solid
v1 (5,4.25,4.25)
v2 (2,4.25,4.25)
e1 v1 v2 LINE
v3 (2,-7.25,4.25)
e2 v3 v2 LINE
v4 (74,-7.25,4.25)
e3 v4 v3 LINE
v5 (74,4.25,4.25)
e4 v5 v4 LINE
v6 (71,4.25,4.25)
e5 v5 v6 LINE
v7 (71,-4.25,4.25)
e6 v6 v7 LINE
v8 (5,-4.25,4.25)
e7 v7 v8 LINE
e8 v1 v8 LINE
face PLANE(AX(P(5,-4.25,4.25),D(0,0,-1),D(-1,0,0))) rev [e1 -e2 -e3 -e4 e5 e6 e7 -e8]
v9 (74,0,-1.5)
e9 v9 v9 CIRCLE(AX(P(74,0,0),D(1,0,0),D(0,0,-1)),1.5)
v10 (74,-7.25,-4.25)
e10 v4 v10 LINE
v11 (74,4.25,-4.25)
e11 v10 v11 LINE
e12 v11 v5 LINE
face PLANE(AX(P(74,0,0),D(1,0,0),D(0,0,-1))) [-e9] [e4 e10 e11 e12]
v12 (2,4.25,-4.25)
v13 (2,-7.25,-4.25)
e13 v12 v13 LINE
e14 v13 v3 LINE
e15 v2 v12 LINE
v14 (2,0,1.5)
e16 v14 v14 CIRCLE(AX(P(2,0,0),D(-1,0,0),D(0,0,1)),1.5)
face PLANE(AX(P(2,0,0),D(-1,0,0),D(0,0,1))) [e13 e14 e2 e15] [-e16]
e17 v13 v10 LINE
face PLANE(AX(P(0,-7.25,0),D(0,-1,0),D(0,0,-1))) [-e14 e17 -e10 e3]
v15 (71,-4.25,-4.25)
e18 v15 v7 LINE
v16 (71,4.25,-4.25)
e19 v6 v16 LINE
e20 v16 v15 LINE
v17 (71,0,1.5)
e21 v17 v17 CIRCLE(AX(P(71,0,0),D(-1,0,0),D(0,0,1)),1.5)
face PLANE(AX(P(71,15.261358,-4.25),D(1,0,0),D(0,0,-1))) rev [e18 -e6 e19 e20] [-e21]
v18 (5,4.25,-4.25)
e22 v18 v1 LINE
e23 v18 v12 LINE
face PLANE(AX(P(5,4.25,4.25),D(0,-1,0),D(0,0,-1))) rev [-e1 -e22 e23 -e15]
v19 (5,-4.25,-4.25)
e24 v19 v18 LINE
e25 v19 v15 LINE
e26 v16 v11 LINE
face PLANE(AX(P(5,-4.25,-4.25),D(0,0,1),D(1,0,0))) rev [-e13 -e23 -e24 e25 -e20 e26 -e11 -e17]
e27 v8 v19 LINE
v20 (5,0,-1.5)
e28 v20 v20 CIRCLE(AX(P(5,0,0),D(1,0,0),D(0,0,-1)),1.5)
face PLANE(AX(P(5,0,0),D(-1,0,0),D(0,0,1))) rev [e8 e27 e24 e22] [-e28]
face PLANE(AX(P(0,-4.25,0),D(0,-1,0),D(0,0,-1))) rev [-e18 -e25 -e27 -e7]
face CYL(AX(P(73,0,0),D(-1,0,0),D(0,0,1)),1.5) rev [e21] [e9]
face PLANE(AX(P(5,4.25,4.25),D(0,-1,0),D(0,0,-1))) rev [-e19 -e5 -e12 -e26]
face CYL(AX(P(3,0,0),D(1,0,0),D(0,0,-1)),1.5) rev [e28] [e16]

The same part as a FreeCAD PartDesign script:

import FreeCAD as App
import Part
import Sketcher
from FreeCAD import Vector
Q = App.Units.Quantity

doc = App.newDocument("Part")
body = doc.addObject("PartDesign::Body", "Body")

# Sketch on YZ plane
sketch1 = body.newObject("Sketcher::SketchObject", "Sketch")
sketch1.AttachmentSupport = (doc.getObject("YZ_Plane"), [""])
sketch1.MapMode = "FlatFace"
sketch1.addGeometry([
    Part.LineSegment(Vector(4.2, 4.2, 0), Vector(-4.2, 4.2, 0)),  # 0
    Part.LineSegment(Vector(-4.2, 4.2, 0), Vector(-4.2, -4.2, 0)),  # 1
    Part.LineSegment(Vector(-4.2, -4.2, 0), Vector(4.2, -4.2, 0)),  # 2
    Part.LineSegment(Vector(4.2, -4.2, 0), Vector(4.2, 4.2, 0)),  # 3
    Part.LineSegment(Vector(2.8, 1.6, 0), Vector(2.8, -1.6, 0)),  # 4
    Part.LineSegment(Vector(2.8, -1.6, 0), Vector(0, -3.2, 0)),  # 5
    Part.LineSegment(Vector(0, -3.2, 0), Vector(-2.8, -1.6, 0)),  # 6
    Part.LineSegment(Vector(-2.8, -1.6, 0), Vector(-2.8, 1.6, 0)),  # 7
    Part.LineSegment(Vector(-2.8, 1.6, 0), Vector(0, 3.2, 0)),  # 8
    Part.LineSegment(Vector(0, 3.2, 0), Vector(2.8, 1.6, 0)),  # 9
], False)
sketch1.addConstraint([
    Sketcher.Constraint("Coincident", 0, 2, 1, 1),
    Sketcher.Constraint("Coincident", 1, 2, 2, 1),
    Sketcher.Constraint("Coincident", 2, 2, 3, 1),
    Sketcher.Constraint("Coincident", 3, 2, 0, 1),
    Sketcher.Constraint("Coincident", 4, 2, 5, 1),
    Sketcher.Constraint("Coincident", 5, 2, 6, 1),
    Sketcher.Constraint("Coincident", 6, 2, 7, 1),
    Sketcher.Constraint("Coincident", 7, 2, 8, 1),
    Sketcher.Constraint("Coincident", 8, 2, 9, 1),
    Sketcher.Constraint("Coincident", 9, 2, 4, 1),
    Sketcher.Constraint("Horizontal", 0),
    Sketcher.Constraint("Vertical", 1),
    Sketcher.Constraint("Horizontal", 2),
    Sketcher.Constraint("Vertical", 3),
    Sketcher.Constraint("Vertical", 4),
    Sketcher.Constraint("Vertical", 7),
    Sketcher.Constraint("Symmetric", 0, 2, 2, 2, -1, 1),
    Sketcher.Constraint("Symmetric", 4, 2, 7, 2, -1, 1),
    Sketcher.Constraint("Symmetric", 5, 2, 8, 2, -1, 1),
    Sketcher.Constraint("PointOnObject", 5, 2, -2),
    Sketcher.Constraint("Parallel", 6, 9),
    Sketcher.Constraint("Horizontal", 4, 2, 6, 2),
    Sketcher.Constraint("Equal", 2, 1),
    Sketcher.Constraint("Angle", 5, Q("-150 deg")),
    Sketcher.Constraint("DistanceX", 0, 2, 0, 1, 8.5),
    Sketcher.Constraint("DistanceX", 1, 2, 4, 2, 7.0),
    Sketcher.Constraint("DistanceY", 4, 2, 4, 1, 3.175426),
])
pad1 = body.newObject("PartDesign::Pad", "Pad")
pad1.Profile = sketch1
pad1.Length = 5

# Sketch on YZ plane
sketch2 = body.newObject("Sketcher::SketchObject", "Sketch001")
sketch2.AttachmentSupport = (doc.getObject("YZ_Plane"), [""])
sketch2.MapMode = "FlatFace"
sketch2.addGeometry([
    Part.LineSegment(Vector(4, -4, 0), Vector(-4, -4, 0)),
    Part.LineSegment(Vector(-4, -4, 0), Vector(-4, 4, 0)),
    Part.LineSegment(Vector(-4, 4, 0), Vector(4, 4, 0)),
    Part.LineSegment(Vector(4, 4, 0), Vector(4, -4, 0)),
], False)
sketch2.addConstraint([
    Sketcher.Constraint("Coincident", 0, 2, 1, 1),
    Sketcher.Constraint("Coincident", 1, 2, 2, 1),
    Sketcher.Constraint("Coincident", 2, 2, 3, 1),
    Sketcher.Constraint("Coincident", 3, 2, 0, 1),
    Sketcher.Constraint("Horizontal", 0),
    Sketcher.Constraint("Vertical", 1),
    Sketcher.Constraint("Horizontal", 2),
    Sketcher.Constraint("Vertical", 3),
    Sketcher.Constraint("Symmetric", 0, 2, 2, 2, -1, 1),
    Sketcher.Constraint("Equal", 2, 1),
    Sketcher.Constraint("DistanceX", 0, 2, 0, 1, 8.5),
])
pad2 = body.newObject("PartDesign::Pad", "Pad001")
pad2.Profile = sketch2
pad2.Length = 2
pad2.Reversed = True

# Sketch on YZ plane
sketch3 = body.newObject("Sketcher::SketchObject", "Sketch002")
sketch3.AttachmentSupport = (doc.getObject("YZ_Plane"), [""])
sketch3.MapMode = "FlatFace"
sketch3.addGeometry(Part.Circle(Vector(0, 0, 0), Vector(0, 0, 1), 1.5), False)
sketch3.addConstraint([
    Sketcher.Constraint("Coincident", 0, 3, -1, 1),
    Sketcher.Constraint("Diameter", 0, 3.0),
])
pocket1 = body.newObject("PartDesign::Pocket", "Pocket")
pocket1.Profile = sketch3
pocket1.Length = 2

# Sketch on XZ plane
sketch4 = body.newObject("Sketcher::SketchObject", "Sketch003")
sketch4.AttachmentSupport = (doc.getObject("XZ_Plane"), [""])
sketch4.MapMode = "FlatFace"
sketch4.AttachmentOffset = App.Placement(Vector(0, 0, 4.25), App.Rotation())
sketch4.addGeometry([
    Part.LineSegment(Vector(-2, 4, 0), Vector(-2, -4, 0)),
    Part.LineSegment(Vector(-2, -4, 0), Vector(78, -4, 0)),
    Part.LineSegment(Vector(78, -4, 0), Vector(78, 4, 0)),
    Part.LineSegment(Vector(78, 4, 0), Vector(-2, 4, 0)),
], False)
sketch4.addConstraint([
    Sketcher.Constraint("Coincident", 0, 2, 1, 1),
    Sketcher.Constraint("Coincident", 1, 2, 2, 1),
    Sketcher.Constraint("Coincident", 2, 2, 3, 1),
    Sketcher.Constraint("Coincident", 3, 2, 0, 1),
    Sketcher.Constraint("Vertical", 0),
    Sketcher.Constraint("Horizontal", 1),
    Sketcher.Constraint("Vertical", 2),
    Sketcher.Constraint("Horizontal", 3),
    Sketcher.Constraint("DistanceX", 1, 1, 1, 2, 80.0),
    Sketcher.Constraint("DistanceY", 0, 2, 0, 1, 8.5),
    Sketcher.Constraint("DistanceX", 0, 2, -1, 1, 2.0),
    Sketcher.Constraint("DistanceY", 0, 2, -1, 1, 4.25),
])
pad3 = body.newObject("PartDesign::Pad", "Pad002")
pad3.Profile = sketch4
pad3.Length = 3

# Sketch on XZ plane
sketch5 = body.newObject("Sketcher::SketchObject", "Sketch004")
sketch5.AttachmentSupport = (doc.getObject("XZ_Plane"), [""])
sketch5.MapMode = "FlatFace"
sketch5.AttachmentOffset = App.Placement(Vector(0, 0, 4.25), App.Rotation())
sketch5.addGeometry([
    Part.LineSegment(Vector(71, -4, 0), Vector(71, 4, 0)),
    Part.LineSegment(Vector(71, 4, 0), Vector(78, 4, 0)),
    Part.LineSegment(Vector(78, 4, 0), Vector(78, -4, 0)),
    Part.LineSegment(Vector(78, -4, 0), Vector(71, -4, 0)),
], False)
sketch5.addConstraint([
    Sketcher.Constraint("Coincident", 0, 2, 1, 1),
    Sketcher.Constraint("Coincident", 1, 2, 2, 1),
    Sketcher.Constraint("Coincident", 2, 2, 3, 1),
    Sketcher.Constraint("Coincident", 3, 2, 0, 1),
    Sketcher.Constraint("Vertical", 0),
    Sketcher.Constraint("Horizontal", 1),
    Sketcher.Constraint("Vertical", 2),
    Sketcher.Constraint("Horizontal", 3),
    Sketcher.Constraint("DistanceX", 1, 1, 1, 2, 7.0),
    Sketcher.Constraint("DistanceY", 0, 1, 0, 2, 8.5),
    Sketcher.Constraint("DistanceX", -1, 1, 0, 2, 71.0),
    Sketcher.Constraint("DistanceY", -1, 1, 0, 2, 4.25),
])
pad4 = body.newObject("PartDesign::Pad", "Pad003")
pad4.Profile = sketch5
pad4.Length = 8.5
pad4.Reversed = True

# Sketch on YZ plane
sketch6 = body.newObject("Sketcher::SketchObject", "Sketch005")
sketch6.AttachmentSupport = (doc.getObject("YZ_Plane"), [""])
sketch6.MapMode = "FlatFace"
sketch6.AttachmentOffset = App.Placement(Vector(0, 0, 71), App.Rotation())
sketch6.addGeometry([
    Part.LineSegment(Vector(0, 3.2, 0), Vector(2.8, 1.6, 0)),  # 0
    Part.LineSegment(Vector(2.8, 1.6, 0), Vector(2.8, -1.6, 0)),  # 1
    Part.LineSegment(Vector(2.8, -1.6, 0), Vector(0, -3.2, 0)),  # 2
    Part.LineSegment(Vector(0, -3.2, 0), Vector(-2.8, -1.6, 0)),  # 3
    Part.LineSegment(Vector(-2.8, -1.6, 0), Vector(-2.8, 1.6, 0)),  # 4
    Part.LineSegment(Vector(-2.8, 1.6, 0), Vector(0, 3.2, 0)),  # 5
], False)
sketch6.addConstraint([
    Sketcher.Constraint("Coincident", 0, 2, 1, 1),
    Sketcher.Constraint("Coincident", 1, 2, 2, 1),
    Sketcher.Constraint("Coincident", 2, 2, 3, 1),
    Sketcher.Constraint("Coincident", 3, 2, 4, 1),
    Sketcher.Constraint("Coincident", 4, 2, 5, 1),
    Sketcher.Constraint("Coincident", 5, 2, 0, 1),
    Sketcher.Constraint("Vertical", 1),
    Sketcher.Constraint("Vertical", 4),
    Sketcher.Constraint("Symmetric", 0, 2, 3, 2, -1, 1),
    Sketcher.Constraint("Symmetric", 2, 2, 5, 2, -1, 1),
    Sketcher.Constraint("PointOnObject", 2, 2, -2),
    Sketcher.Constraint("Parallel", 2, 5),
    Sketcher.Constraint("Horizontal", 1, 2, 3, 2),
    Sketcher.Constraint("Angle", 0, Q("-30 deg")),
    Sketcher.Constraint("DistanceX", 3, 2, 1, 2, 5.5),
    Sketcher.Constraint("DistanceY", 1, 2, 1, 1, 3.175426),
])
pocket2 = body.newObject("PartDesign::Pocket", "Pocket001")
pocket2.Profile = sketch6
pocket2.Length = 5
pocket2.Reversed = True

# Sketch on YZ plane
sketch7 = body.newObject("Sketcher::SketchObject", "Sketch006")
sketch7.AttachmentSupport = (doc.getObject("YZ_Plane"), [""])
sketch7.MapMode = "FlatFace"
sketch7.AttachmentOffset = App.Placement(Vector(0, 0, 76), App.Rotation())
sketch7.addGeometry(Part.Circle(Vector(0, 0, 0), Vector(0, 0, 1), 1.5), False)
sketch7.addConstraint([
    Sketcher.Constraint("Coincident", 0, 3, -1, 1),
    Sketcher.Constraint("Diameter", 0, 3.0),
])
pocket3 = body.newObject("PartDesign::Pocket", "Pocket002")
pocket3.Profile = sketch7
pocket3.Length = 5
pocket3.Reversed = True

# Sketch on YZ plane
sketch8 = body.newObject("Sketcher::SketchObject", "Sketch007")
sketch8.AttachmentSupport = (doc.getObject("YZ_Plane"), [""])
sketch8.MapMode = "FlatFace"
sketch8.AttachmentOffset = App.Placement(Vector(0, 0, -2), App.Rotation())
sketch8.addGeometry([
    Part.LineSegment(Vector(2.8, 1.6, 0), Vector(2.8, -1.6, 0)),  # 0
    Part.LineSegment(Vector(2.8, -1.6, 0), Vector(0, -3.2, 0)),  # 1
    Part.LineSegment(Vector(0, -3.2, 0), Vector(-2.8, -1.6, 0)),  # 2
    Part.LineSegment(Vector(-2.8, -1.6, 0), Vector(-2.8, 1.6, 0)),  # 3
    Part.LineSegment(Vector(-2.8, 1.6, 0), Vector(0, 3.2, 0)),  # 4
    Part.LineSegment(Vector(0, 3.2, 0), Vector(2.8, 1.6, 0)),  # 5
], False)
sketch8.addConstraint([
    Sketcher.Constraint("Coincident", 0, 2, 1, 1),
    Sketcher.Constraint("Coincident", 1, 2, 2, 1),
    Sketcher.Constraint("Coincident", 2, 2, 3, 1),
    Sketcher.Constraint("Coincident", 3, 2, 4, 1),
    Sketcher.Constraint("Coincident", 4, 2, 5, 1),
    Sketcher.Constraint("Coincident", 5, 2, 0, 1),
    Sketcher.Constraint("Vertical", 0),
    Sketcher.Constraint("Vertical", 3),
    Sketcher.Constraint("Symmetric", 0, 2, 3, 2, -1, 1),
    Sketcher.Constraint("Symmetric", 1, 2, 4, 2, -1, 1),
    Sketcher.Constraint("PointOnObject", 1, 2, -2),
    Sketcher.Constraint("Parallel", 2, 5),
    Sketcher.Constraint("Horizontal", 0, 2, 2, 2),
    Sketcher.Constraint("Angle", 1, Q("-150 deg")),
    Sketcher.Constraint("DistanceX", 2, 2, 0, 2, 5.5),
    Sketcher.Constraint("DistanceY", 0, 2, 0, 1, 3.175426),
])
pocket4 = body.newObject("PartDesign::Pocket", "Pocket003")
pocket4.Profile = sketch8
pocket4.Length = 10
pocket4.Reversed = True

# Sketch on YZ plane
sketch9 = body.newObject("Sketcher::SketchObject", "Sketch008")
sketch9.AttachmentSupport = (doc.getObject("YZ_Plane"), [""])
sketch9.MapMode = "FlatFace"
sketch9.AttachmentOffset = App.Placement(Vector(0, 0, 5), App.Rotation())
sketch9.addGeometry([
    Part.LineSegment(Vector(4.2, 4.2, 0), Vector(-4.2, 4.2, 0)),  # 0
    Part.LineSegment(Vector(-4.2, 4.2, 0), Vector(-4.2, -4.2, 0)),  # 1
    Part.LineSegment(Vector(-4.2, -4.2, 0), Vector(4.2, -4.2, 0)),  # 2
    Part.LineSegment(Vector(4.2, -4.2, 0), Vector(4.2, 4.2, 0)),  # 3
    Part.Circle(Vector(0, 0, 0), Vector(0, 0, 1), 1.5),  # 4
], False)
sketch9.addConstraint([
    Sketcher.Constraint("Coincident", 0, 2, 1, 1),
    Sketcher.Constraint("Coincident", 1, 2, 2, 1),
    Sketcher.Constraint("Coincident", 2, 2, 3, 1),
    Sketcher.Constraint("Coincident", 3, 2, 0, 1),
    Sketcher.Constraint("Horizontal", 0),
    Sketcher.Constraint("Vertical", 1),
    Sketcher.Constraint("Horizontal", 2),
    Sketcher.Constraint("Vertical", 3),
    Sketcher.Constraint("Coincident", 4, 3, -1, 1),
    Sketcher.Constraint("Symmetric", 0, 2, 2, 2, -1, 1),
    Sketcher.Constraint("Equal", 2, 1),
    Sketcher.Constraint("Diameter", 4, 3.0),
    Sketcher.Constraint("DistanceX", 0, 2, 0, 1, 8.5),
])
pad5 = body.newObject("PartDesign::Pad", "Pad004")
pad5.Profile = sketch9
pad5.Length = 2
pad5.Reversed = True

# Sketch on YZ plane
sketch10 = body.newObject("Sketcher::SketchObject", "Sketch009")
sketch10.AttachmentSupport = (doc.getObject("YZ_Plane"), [""])
sketch10.MapMode = "FlatFace"
sketch10.AttachmentOffset = App.Placement(Vector(0, 0, 78), App.Rotation())
sketch10.addGeometry([
    Part.LineSegment(Vector(2.8, 1.6, 0), Vector(0, 3.2, 0)),  # 0
    Part.LineSegment(Vector(0, 3.2, 0), Vector(-2.8, 1.6, 0)),  # 1
    Part.LineSegment(Vector(-2.8, 1.6, 0), Vector(-2.8, -1.6, 0)),  # 2
    Part.LineSegment(Vector(-2.8, -1.6, 0), Vector(0, -3.2, 0)),  # 3
    Part.LineSegment(Vector(0, -3.2, 0), Vector(2.8, -1.6, 0)),  # 4
    Part.LineSegment(Vector(2.8, -1.6, 0), Vector(2.8, 1.6, 0)),  # 5
], False)
sketch10.addConstraint([
    Sketcher.Constraint("Coincident", 0, 2, 1, 1),
    Sketcher.Constraint("Coincident", 1, 2, 2, 1),
    Sketcher.Constraint("Coincident", 2, 2, 3, 1),
    Sketcher.Constraint("Coincident", 3, 2, 4, 1),
    Sketcher.Constraint("Coincident", 4, 2, 5, 1),
    Sketcher.Constraint("Coincident", 5, 2, 0, 1),
    Sketcher.Constraint("Vertical", 2),
    Sketcher.Constraint("Vertical", 5),
    Sketcher.Constraint("Symmetric", 0, 2, 3, 2, -1, 1),
    Sketcher.Constraint("Symmetric", 1, 2, 4, 2, -1, 1),
    Sketcher.Constraint("PointOnObject", 0, 2, -2),
    Sketcher.Constraint("Parallel", 0, 3),
    Sketcher.Constraint("Horizontal", 2, 2, 4, 2),
    Sketcher.Constraint("Angle", 0, Q("150 deg")),
    Sketcher.Constraint("DistanceX", 2, 2, 4, 2, 5.5),
    Sketcher.Constraint("DistanceY", 2, 2, 2, 1, 3.175426),
])
pocket5 = body.newObject("PartDesign::Pocket", "Pocket004")
pocket5.Profile = sketch10
pocket5.Length = 2

# Sketch on YZ plane
sketch11 = body.newObject("Sketcher::SketchObject", "Sketch010")
sketch11.AttachmentSupport = (doc.getObject("YZ_Plane"), [""])
sketch11.MapMode = "FlatFace"
sketch11.AttachmentOffset = App.Placement(Vector(0, 0, 71), App.Rotation())
sketch11.addGeometry([
    Part.LineSegment(Vector(4.2, -4.2, 0), Vector(-4.2, -4.2, 0)),  # 0
    Part.LineSegment(Vector(-4.2, -4.2, 0), Vector(-4.2, 4.2, 0)),  # 1
    Part.LineSegment(Vector(-4.2, 4.2, 0), Vector(4.2, 4.2, 0)),  # 2
    Part.LineSegment(Vector(4.2, 4.2, 0), Vector(4.2, -4.2, 0)),  # 3
    Part.Circle(Vector(0, 0, 0), Vector(0, 0, 1), 1.5),  # 4
], False)
sketch11.addConstraint([
    Sketcher.Constraint("Coincident", 0, 2, 1, 1),
    Sketcher.Constraint("Coincident", 1, 2, 2, 1),
    Sketcher.Constraint("Coincident", 2, 2, 3, 1),
    Sketcher.Constraint("Coincident", 3, 2, 0, 1),
    Sketcher.Constraint("Horizontal", 0),
    Sketcher.Constraint("Vertical", 1),
    Sketcher.Constraint("Horizontal", 2),
    Sketcher.Constraint("Vertical", 3),
    Sketcher.Constraint("Coincident", 4, 3, -1, 1),
    Sketcher.Constraint("Symmetric", 0, 2, 2, 2, -1, 1),
    Sketcher.Constraint("Equal", 2, 1),
    Sketcher.Constraint("Diameter", 4, 3.0),
    Sketcher.Constraint("DistanceX", 0, 2, 0, 1, 8.5),
])
pad6 = body.newObject("PartDesign::Pad", "Pad005")
pad6.Profile = sketch11
pad6.Length = 2

# Sketch on YZ plane
sketch12 = body.newObject("Sketcher::SketchObject", "Sketch011")
sketch12.AttachmentSupport = (doc.getObject("YZ_Plane"), [""])
sketch12.MapMode = "FlatFace"
sketch12.AttachmentOffset = App.Placement(Vector(0, 0, 3), App.Rotation())
sketch12.addGeometry([
    Part.LineSegment(Vector(2.8, -1.6, 0), Vector(0, -3.2, 0)),  # 0
    Part.LineSegment(Vector(0, -3.2, 0), Vector(-2.8, -1.6, 0)),  # 1
    Part.LineSegment(Vector(-2.8, -1.6, 0), Vector(-2.8, 1.6, 0)),  # 2
    Part.LineSegment(Vector(-2.8, 1.6, 0), Vector(0, 3.2, 0)),  # 3
    Part.LineSegment(Vector(0, 3.2, 0), Vector(2.8, 1.6, 0)),  # 4
    Part.LineSegment(Vector(2.8, 1.6, 0), Vector(2.8, -1.6, 0)),  # 5
], False)
sketch12.addConstraint([
    Sketcher.Constraint("Coincident", 0, 2, 1, 1),
    Sketcher.Constraint("Coincident", 1, 2, 2, 1),
    Sketcher.Constraint("Coincident", 2, 2, 3, 1),
    Sketcher.Constraint("Coincident", 3, 2, 4, 1),
    Sketcher.Constraint("Coincident", 4, 2, 5, 1),
    Sketcher.Constraint("Coincident", 5, 2, 0, 1),
    Sketcher.Constraint("Vertical", 2),
    Sketcher.Constraint("Vertical", 5),
    Sketcher.Constraint("Symmetric", 0, 2, 3, 2, -1, 1),
    Sketcher.Constraint("Symmetric", 1, 2, 4, 2, -1, 1),
    Sketcher.Constraint("PointOnObject", 0, 2, -2),
    Sketcher.Constraint("Parallel", 0, 3),
    Sketcher.Constraint("Horizontal", 2, 2, 4, 2),
    Sketcher.Constraint("Angle", 0, Q("-150 deg")),
    Sketcher.Constraint("DistanceX", 2, 2, 4, 2, 5.5),
    Sketcher.Constraint("DistanceY", 2, 1, 2, 2, 3.175426),
])
pad7 = body.newObject("PartDesign::Pad", "Pad006")
pad7.Profile = sketch12
pad7.Length = 5
pad7.Reversed = True

# Sketch on YZ plane
sketch13 = body.newObject("Sketcher::SketchObject", "Sketch012")
sketch13.AttachmentSupport = (doc.getObject("YZ_Plane"), [""])
sketch13.MapMode = "FlatFace"
sketch13.AttachmentOffset = App.Placement(Vector(0, 0, 73), App.Rotation())
sketch13.addGeometry([
    Part.LineSegment(Vector(2.8, 1.6, 0), Vector(0, 3.2, 0)),  # 0
    Part.LineSegment(Vector(0, 3.2, 0), Vector(-2.8, 1.6, 0)),  # 1
    Part.LineSegment(Vector(-2.8, 1.6, 0), Vector(-2.8, -1.6, 0)),  # 2
    Part.LineSegment(Vector(-2.8, -1.6, 0), Vector(0, -3.2, 0)),  # 3
    Part.LineSegment(Vector(0, -3.2, 0), Vector(2.8, -1.6, 0)),  # 4
    Part.LineSegment(Vector(2.8, -1.6, 0), Vector(2.8, 1.6, 0)),  # 5
], False)
sketch13.addConstraint([
    Sketcher.Constraint("Coincident", 0, 2, 1, 1),
    Sketcher.Constraint("Coincident", 1, 2, 2, 1),
    Sketcher.Constraint("Coincident", 2, 2, 3, 1),
    Sketcher.Constraint("Coincident", 3, 2, 4, 1),
    Sketcher.Constraint("Coincident", 4, 2, 5, 1),
    Sketcher.Constraint("Coincident", 5, 2, 0, 1),
    Sketcher.Constraint("Vertical", 2),
    Sketcher.Constraint("Vertical", 5),
    Sketcher.Constraint("Symmetric", 0, 2, 3, 2, -1, 1),
    Sketcher.Constraint("Symmetric", 1, 2, 4, 2, -1, 1),
    Sketcher.Constraint("PointOnObject", 0, 2, -2),
    Sketcher.Constraint("Parallel", 0, 3),
    Sketcher.Constraint("Horizontal", 2, 2, 4, 2),
    Sketcher.Constraint("Angle", 0, Q("150 deg")),
    Sketcher.Constraint("DistanceX", 2, 2, 4, 2, 5.5),
    Sketcher.Constraint("DistanceY", 2, 2, 2, 1, 3.175426),
])
pad8 = body.newObject("PartDesign::Pad", "Pad007")
pad8.Profile = sketch13
pad8.Length = 5

# Sketch on YZ plane
sketch14 = body.newObject("Sketcher::SketchObject", "Sketch013")
sketch14.AttachmentSupport = (doc.getObject("YZ_Plane"), [""])
sketch14.MapMode = "FlatFace"
sketch14.AttachmentOffset = App.Placement(Vector(0, 0, -2), App.Rotation())
sketch14.addGeometry([
    Part.LineSegment(Vector(4, -4, 0), Vector(-7, -4, 0)),
    Part.LineSegment(Vector(-7, -4, 0), Vector(-7, 4, 0)),
    Part.LineSegment(Vector(-7, 4, 0), Vector(4, 4, 0)),
    Part.LineSegment(Vector(4, 4, 0), Vector(4, -4, 0)),
], False)
sketch14.addConstraint([
    Sketcher.Constraint("Coincident", 0, 2, 1, 1),
    Sketcher.Constraint("Coincident", 1, 2, 2, 1),
    Sketcher.Constraint("Coincident", 2, 2, 3, 1),
    Sketcher.Constraint("Coincident", 3, 2, 0, 1),
    Sketcher.Constraint("Horizontal", 0),
    Sketcher.Constraint("Vertical", 1),
    Sketcher.Constraint("Horizontal", 2),
    Sketcher.Constraint("Vertical", 3),
    Sketcher.Constraint("DistanceX", 0, 2, 0, 1, 11.5),
    Sketcher.Constraint("DistanceY", 1, 1, 1, 2, 8.5),
    Sketcher.Constraint("DistanceX", 0, 2, -1, 1, 7.25),
    Sketcher.Constraint("DistanceY", 0, 2, -1, 1, 4.25),
])
pocket6 = body.newObject("PartDesign::Pocket", "Pocket005")
pocket6.Profile = sketch14
pocket6.Length = 4
pocket6.Reversed = True

# Sketch on YZ plane
sketch15 = body.newObject("Sketcher::SketchObject", "Sketch014")
sketch15.AttachmentSupport = (doc.getObject("YZ_Plane"), [""])
sketch15.MapMode = "FlatFace"
sketch15.AttachmentOffset = App.Placement(Vector(0, 0, 78), App.Rotation())
sketch15.addGeometry([
    Part.LineSegment(Vector(4, 4, 0), Vector(-7, 4, 0)),
    Part.LineSegment(Vector(-7, 4, 0), Vector(-7, -4, 0)),
    Part.LineSegment(Vector(-7, -4, 0), Vector(4, -4, 0)),
    Part.LineSegment(Vector(4, -4, 0), Vector(4, 4, 0)),
], False)
sketch15.addConstraint([
    Sketcher.Constraint("Coincident", 0, 2, 1, 1),
    Sketcher.Constraint("Coincident", 1, 2, 2, 1),
    Sketcher.Constraint("Coincident", 2, 2, 3, 1),
    Sketcher.Constraint("Coincident", 3, 2, 0, 1),
    Sketcher.Constraint("Horizontal", 0),
    Sketcher.Constraint("Vertical", 1),
    Sketcher.Constraint("Horizontal", 2),
    Sketcher.Constraint("Vertical", 3),
    Sketcher.Constraint("DistanceX", 0, 2, 0, 1, 11.5),
    Sketcher.Constraint("DistanceY", 1, 2, 1, 1, 8.5),
    Sketcher.Constraint("DistanceX", 0, 2, -1, 1, 7.25),
    Sketcher.Constraint("DistanceY", -1, 1, 0, 2, 4.25),
])
pocket7 = body.newObject("PartDesign::Pocket", "Pocket006")
pocket7.Profile = sketch15
pocket7.Length = 4

# Sketch on YZ plane
sketch16 = body.newObject("Sketcher::SketchObject", "Sketch015")
sketch16.AttachmentSupport = (doc.getObject("YZ_Plane"), [""])
sketch16.MapMode = "FlatFace"
sketch16.AttachmentOffset = App.Placement(Vector(0, 0, 5), App.Rotation())
sketch16.addGeometry(Part.Circle(Vector(0, 0, 0), Vector(0, 0, 1), 1.5), False)
sketch16.addConstraint([
    Sketcher.Constraint("Coincident", 0, 3, -1, 1),
    Sketcher.Constraint("Diameter", 0, 3.0),
])
pocket8 = body.newObject("PartDesign::Pocket", "Pocket007")
pocket8.Profile = sketch16
pocket8.Length = 4

# Sketch on YZ plane
sketch17 = body.newObject("Sketcher::SketchObject", "Sketch016")
sketch17.AttachmentSupport = (doc.getObject("YZ_Plane"), [""])
sketch17.MapMode = "FlatFace"
sketch17.AttachmentOffset = App.Placement(Vector(0, 0, 73), App.Rotation())
sketch17.addGeometry(Part.Circle(Vector(0, 0, 0), Vector(0, 0, 1), 1.5), False)
sketch17.addConstraint([
    Sketcher.Constraint("Coincident", 0, 3, -1, 1),
    Sketcher.Constraint("Diameter", 0, 3.0),
])
pocket9 = body.newObject("PartDesign::Pocket", "Pocket008")
pocket9.Profile = sketch17
pocket9.Length = 4
pocket9.Reversed = True

doc.recompute()
